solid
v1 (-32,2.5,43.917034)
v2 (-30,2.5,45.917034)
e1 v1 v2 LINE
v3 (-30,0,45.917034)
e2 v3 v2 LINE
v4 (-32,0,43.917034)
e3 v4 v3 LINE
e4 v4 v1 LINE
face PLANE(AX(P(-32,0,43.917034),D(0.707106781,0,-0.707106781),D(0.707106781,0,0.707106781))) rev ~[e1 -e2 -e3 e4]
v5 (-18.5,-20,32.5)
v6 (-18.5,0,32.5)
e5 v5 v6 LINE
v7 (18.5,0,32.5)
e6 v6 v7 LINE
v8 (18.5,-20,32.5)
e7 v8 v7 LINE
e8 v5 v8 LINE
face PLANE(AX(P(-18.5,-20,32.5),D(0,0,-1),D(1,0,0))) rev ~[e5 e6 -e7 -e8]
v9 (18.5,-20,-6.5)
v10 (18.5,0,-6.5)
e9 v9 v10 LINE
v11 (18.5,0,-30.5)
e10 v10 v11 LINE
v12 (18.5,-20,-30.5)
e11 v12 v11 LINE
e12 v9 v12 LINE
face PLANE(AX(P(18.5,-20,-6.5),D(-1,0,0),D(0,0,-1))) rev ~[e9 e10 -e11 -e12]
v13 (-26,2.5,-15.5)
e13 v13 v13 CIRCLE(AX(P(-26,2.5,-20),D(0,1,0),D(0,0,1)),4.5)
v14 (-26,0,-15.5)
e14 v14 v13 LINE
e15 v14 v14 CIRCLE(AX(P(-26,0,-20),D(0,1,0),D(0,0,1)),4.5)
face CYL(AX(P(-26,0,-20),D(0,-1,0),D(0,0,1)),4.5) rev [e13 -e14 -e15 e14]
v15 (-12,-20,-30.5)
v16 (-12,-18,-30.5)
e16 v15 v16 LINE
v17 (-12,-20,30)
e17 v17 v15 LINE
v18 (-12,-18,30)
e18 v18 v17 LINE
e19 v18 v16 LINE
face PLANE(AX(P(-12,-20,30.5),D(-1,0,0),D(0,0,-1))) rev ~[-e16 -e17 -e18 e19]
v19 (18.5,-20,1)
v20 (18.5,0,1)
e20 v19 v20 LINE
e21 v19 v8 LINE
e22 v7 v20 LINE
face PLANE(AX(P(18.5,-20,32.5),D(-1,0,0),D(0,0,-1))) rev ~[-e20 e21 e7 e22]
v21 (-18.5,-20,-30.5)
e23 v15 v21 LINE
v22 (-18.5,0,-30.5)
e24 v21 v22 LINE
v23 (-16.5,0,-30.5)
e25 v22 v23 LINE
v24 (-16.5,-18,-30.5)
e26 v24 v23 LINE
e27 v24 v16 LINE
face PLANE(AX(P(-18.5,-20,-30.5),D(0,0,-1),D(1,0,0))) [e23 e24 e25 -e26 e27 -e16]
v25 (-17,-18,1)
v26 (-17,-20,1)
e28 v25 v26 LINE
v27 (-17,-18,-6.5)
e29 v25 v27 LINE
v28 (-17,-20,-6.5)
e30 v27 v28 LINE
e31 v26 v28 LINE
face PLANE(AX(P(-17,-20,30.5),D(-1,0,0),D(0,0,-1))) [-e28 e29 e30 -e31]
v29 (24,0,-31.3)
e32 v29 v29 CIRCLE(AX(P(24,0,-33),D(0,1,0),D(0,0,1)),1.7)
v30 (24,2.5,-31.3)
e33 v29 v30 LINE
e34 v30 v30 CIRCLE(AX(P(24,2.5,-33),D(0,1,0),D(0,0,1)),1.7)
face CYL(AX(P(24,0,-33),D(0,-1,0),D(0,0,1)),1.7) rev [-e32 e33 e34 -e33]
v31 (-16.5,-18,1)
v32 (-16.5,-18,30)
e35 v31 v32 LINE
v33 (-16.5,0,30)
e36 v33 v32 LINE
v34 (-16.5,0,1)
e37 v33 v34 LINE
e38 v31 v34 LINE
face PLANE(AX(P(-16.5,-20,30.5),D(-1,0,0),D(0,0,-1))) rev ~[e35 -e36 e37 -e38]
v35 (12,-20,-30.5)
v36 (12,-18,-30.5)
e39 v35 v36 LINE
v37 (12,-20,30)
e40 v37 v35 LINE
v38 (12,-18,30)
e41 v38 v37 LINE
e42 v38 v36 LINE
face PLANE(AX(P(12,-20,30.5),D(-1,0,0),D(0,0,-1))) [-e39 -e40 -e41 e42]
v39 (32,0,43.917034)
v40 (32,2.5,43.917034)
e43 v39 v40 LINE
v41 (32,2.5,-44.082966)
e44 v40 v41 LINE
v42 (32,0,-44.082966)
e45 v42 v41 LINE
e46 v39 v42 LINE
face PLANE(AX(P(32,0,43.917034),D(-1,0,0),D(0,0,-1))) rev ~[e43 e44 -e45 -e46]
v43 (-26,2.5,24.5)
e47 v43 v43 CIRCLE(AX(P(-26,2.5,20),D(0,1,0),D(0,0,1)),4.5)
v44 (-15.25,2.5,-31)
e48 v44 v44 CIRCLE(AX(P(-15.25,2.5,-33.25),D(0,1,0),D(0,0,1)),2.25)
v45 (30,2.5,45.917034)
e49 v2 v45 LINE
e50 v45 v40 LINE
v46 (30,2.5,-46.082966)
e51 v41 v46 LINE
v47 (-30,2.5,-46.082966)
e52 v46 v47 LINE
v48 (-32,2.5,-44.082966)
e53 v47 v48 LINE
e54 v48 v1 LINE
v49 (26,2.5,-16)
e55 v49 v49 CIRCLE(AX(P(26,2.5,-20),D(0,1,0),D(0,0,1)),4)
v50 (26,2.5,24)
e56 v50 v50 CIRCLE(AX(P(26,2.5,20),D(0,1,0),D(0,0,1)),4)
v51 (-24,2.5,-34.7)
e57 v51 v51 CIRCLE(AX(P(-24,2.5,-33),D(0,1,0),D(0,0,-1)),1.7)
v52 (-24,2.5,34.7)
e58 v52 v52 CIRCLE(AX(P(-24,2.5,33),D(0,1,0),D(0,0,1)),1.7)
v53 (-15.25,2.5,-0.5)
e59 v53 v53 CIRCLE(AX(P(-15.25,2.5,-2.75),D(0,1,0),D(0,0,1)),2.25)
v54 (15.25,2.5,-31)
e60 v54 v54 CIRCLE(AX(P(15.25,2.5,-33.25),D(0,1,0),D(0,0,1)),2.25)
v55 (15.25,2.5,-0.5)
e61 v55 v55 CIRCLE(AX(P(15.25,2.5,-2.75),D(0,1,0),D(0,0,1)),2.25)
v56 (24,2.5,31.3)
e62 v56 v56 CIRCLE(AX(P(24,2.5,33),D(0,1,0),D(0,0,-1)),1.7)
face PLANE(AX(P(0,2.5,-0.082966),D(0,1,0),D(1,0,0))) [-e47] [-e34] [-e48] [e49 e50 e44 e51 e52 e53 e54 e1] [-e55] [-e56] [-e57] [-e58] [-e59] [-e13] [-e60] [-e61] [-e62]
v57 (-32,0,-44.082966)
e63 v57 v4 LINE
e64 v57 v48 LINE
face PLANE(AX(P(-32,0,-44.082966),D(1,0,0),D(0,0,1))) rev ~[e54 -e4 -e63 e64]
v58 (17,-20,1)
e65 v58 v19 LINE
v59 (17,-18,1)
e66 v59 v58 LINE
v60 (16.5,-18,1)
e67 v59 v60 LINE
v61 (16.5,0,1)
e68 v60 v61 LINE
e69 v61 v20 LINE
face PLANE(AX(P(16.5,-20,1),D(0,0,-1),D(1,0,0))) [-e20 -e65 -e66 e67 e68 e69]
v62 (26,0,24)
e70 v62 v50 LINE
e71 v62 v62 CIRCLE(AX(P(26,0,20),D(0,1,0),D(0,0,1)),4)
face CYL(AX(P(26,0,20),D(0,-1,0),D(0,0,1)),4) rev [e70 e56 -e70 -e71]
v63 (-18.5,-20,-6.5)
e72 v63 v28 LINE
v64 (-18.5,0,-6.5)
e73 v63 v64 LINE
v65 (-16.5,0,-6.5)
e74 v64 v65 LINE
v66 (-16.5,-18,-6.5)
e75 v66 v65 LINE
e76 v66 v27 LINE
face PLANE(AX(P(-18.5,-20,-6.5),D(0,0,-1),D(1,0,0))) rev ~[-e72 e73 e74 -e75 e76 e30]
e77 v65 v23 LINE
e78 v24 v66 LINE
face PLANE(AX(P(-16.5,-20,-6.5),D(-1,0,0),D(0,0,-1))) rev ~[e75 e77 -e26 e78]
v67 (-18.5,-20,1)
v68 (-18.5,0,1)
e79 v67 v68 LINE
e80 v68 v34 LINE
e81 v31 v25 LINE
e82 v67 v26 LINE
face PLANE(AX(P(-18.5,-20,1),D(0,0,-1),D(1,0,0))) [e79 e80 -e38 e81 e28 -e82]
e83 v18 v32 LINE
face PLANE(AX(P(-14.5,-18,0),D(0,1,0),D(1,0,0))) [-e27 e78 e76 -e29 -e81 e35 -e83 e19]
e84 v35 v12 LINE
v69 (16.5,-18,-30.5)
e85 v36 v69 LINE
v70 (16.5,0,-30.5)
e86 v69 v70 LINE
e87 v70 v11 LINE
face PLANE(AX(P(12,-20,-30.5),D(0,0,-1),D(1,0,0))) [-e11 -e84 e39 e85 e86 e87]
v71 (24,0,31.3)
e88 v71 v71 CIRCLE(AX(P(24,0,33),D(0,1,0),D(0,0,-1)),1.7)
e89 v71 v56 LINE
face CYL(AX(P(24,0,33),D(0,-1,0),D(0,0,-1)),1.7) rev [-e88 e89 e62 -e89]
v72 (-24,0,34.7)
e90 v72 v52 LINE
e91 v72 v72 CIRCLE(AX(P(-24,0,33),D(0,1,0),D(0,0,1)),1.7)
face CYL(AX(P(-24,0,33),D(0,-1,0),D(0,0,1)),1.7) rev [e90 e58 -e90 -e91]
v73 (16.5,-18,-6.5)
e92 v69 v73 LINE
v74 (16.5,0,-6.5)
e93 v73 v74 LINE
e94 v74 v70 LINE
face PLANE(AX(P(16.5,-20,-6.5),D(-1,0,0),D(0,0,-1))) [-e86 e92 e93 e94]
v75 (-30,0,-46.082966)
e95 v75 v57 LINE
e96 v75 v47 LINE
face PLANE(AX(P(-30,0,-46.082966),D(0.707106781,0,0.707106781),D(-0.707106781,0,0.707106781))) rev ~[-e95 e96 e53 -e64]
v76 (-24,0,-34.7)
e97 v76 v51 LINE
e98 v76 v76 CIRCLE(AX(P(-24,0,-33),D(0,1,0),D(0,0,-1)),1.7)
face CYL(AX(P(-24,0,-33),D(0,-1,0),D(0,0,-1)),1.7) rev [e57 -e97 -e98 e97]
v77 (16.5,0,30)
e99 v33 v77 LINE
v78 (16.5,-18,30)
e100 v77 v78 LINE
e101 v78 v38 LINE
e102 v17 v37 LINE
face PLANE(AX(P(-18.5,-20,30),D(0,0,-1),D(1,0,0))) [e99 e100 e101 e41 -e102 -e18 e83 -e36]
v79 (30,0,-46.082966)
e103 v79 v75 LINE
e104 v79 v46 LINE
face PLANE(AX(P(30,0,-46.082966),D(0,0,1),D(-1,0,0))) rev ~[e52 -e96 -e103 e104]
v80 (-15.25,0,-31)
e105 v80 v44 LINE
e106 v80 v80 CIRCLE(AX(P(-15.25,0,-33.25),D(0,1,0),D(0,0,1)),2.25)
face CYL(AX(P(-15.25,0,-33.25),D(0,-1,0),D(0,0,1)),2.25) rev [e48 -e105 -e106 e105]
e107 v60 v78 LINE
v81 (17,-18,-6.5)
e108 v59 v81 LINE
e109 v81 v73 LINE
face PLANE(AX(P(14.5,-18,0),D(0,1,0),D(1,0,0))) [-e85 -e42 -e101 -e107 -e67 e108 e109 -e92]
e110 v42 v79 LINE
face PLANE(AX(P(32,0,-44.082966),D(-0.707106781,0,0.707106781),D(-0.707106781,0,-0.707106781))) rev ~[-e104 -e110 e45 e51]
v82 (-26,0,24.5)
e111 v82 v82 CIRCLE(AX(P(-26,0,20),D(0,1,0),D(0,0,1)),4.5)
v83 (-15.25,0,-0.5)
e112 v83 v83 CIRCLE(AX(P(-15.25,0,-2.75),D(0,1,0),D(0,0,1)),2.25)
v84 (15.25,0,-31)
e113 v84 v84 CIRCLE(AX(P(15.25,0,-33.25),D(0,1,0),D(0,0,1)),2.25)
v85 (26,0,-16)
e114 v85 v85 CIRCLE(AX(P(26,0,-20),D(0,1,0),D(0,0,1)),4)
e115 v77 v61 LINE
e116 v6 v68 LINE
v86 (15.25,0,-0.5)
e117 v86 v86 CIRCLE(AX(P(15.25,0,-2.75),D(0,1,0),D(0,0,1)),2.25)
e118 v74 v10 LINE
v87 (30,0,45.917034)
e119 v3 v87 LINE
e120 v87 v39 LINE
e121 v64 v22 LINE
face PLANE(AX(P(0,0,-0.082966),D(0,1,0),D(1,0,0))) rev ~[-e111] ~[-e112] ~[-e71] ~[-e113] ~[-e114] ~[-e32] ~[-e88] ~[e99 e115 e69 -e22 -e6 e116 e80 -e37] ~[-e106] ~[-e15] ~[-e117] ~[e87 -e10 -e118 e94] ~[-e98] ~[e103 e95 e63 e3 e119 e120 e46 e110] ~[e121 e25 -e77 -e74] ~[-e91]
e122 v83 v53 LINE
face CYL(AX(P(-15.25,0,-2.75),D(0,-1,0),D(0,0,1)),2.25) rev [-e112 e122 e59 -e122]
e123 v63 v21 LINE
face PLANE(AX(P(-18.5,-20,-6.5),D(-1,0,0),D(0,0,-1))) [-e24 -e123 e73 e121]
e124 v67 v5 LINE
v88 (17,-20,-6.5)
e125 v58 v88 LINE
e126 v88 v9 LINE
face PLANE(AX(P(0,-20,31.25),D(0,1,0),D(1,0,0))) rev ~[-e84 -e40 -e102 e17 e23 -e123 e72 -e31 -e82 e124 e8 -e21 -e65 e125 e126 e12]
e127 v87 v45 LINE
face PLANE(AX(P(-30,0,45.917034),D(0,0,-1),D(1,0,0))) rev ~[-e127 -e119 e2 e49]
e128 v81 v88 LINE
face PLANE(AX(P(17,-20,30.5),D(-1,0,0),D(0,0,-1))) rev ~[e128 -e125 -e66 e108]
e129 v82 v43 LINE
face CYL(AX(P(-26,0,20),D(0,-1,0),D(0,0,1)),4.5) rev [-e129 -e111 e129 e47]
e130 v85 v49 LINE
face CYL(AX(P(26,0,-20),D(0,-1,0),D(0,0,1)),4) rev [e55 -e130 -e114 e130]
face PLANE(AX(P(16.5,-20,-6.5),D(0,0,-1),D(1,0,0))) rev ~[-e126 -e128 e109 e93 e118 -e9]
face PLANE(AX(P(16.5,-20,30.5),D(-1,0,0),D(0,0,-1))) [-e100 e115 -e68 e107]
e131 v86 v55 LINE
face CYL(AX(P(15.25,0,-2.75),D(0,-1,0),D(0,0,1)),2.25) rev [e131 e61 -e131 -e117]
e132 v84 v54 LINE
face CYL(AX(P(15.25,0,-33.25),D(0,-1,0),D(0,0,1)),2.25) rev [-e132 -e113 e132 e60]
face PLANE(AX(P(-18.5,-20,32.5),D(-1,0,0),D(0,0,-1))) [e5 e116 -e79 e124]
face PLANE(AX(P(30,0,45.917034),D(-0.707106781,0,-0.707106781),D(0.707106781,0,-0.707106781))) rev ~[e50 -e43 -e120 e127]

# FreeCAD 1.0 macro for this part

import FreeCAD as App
import Part
import Sketcher

V = App.Vector
Q = App.Units.Quantity

doc = App.newDocument("Part")
body = doc.addObject("PartDesign::Body", "Body")

sketch1 = doc.addObject("Sketcher::SketchObject", "Sketch")
body.addObject(sketch1)
sketch1.AttachmentSupport = (doc.XZ_Plane, [""])
sketch1.MapMode = "FlatFace"
sketch1.addGeometry([
    Part.LineSegment(V(-30, 45.9, 0), V(30, 45.9, 0)),
    Part.LineSegment(V(30, 45.9, 0), V(32, 43.9, 0)),
    Part.LineSegment(V(32, 43.9, 0), V(32, -44.1, 0)),
    Part.LineSegment(V(32, -44.1, 0), V(30, -46.1, 0)),
    Part.LineSegment(V(30, -46.1, 0), V(-30, -46.1, 0)),
    Part.LineSegment(V(-30, -46.1, 0), V(-32, -44.1, 0)),
    Part.LineSegment(V(-32, -44.1, 0), V(-32, 43.9, 0)),
    Part.LineSegment(V(-32, 43.9, 0), V(-30, 45.9, 0)),
    Part.Circle(V(-24, 33, 0), V(0, 0, 1), 1.7),
    Part.Circle(V(-26, 20, 0), V(0, 0, 1), 4.5),
    Part.Circle(V(24, 33, 0), V(0, 0, 1), 1.7),
    Part.Circle(V(26, 20, 0), V(0, 0, 1), 4),
    Part.Circle(V(-15.2, -2.8, 0), V(0, 0, 1), 2.2),
    Part.Circle(V(-26, -20, 0), V(0, 0, 1), 4.5),
    Part.Circle(V(-24, -33, 0), V(0, 0, 1), 1.7),
    Part.Circle(V(-15.2, -33.2, 0), V(0, 0, 1), 2.2),
    Part.Circle(V(15.2, -2.8, 0), V(0, 0, 1), 2.2),
    Part.Circle(V(26, -20, 0), V(0, 0, 1), 4),
    Part.Circle(V(15.2, -33.2, 0), V(0, 0, 1), 2.2),
    Part.Circle(V(24, -33, 0), V(0, 0, 1), 1.7),
], False)
sketch1.addConstraint([
    Sketcher.Constraint("Coincident", 0, 2, 1, 1),
    Sketcher.Constraint("Coincident", 1, 2, 2, 1),
    Sketcher.Constraint("Coincident", 2, 2, 3, 1),
    Sketcher.Constraint("Coincident", 3, 2, 4, 1),
    Sketcher.Constraint("Coincident", 4, 2, 5, 1),
    Sketcher.Constraint("Coincident", 5, 2, 6, 1),
    Sketcher.Constraint("Coincident", 6, 2, 7, 1),
    Sketcher.Constraint("Coincident", 7, 2, 0, 1),
    Sketcher.Constraint("Horizontal", 0),
    Sketcher.Constraint("Vertical", 2),
    Sketcher.Constraint("Horizontal", 4),
    Sketcher.Constraint("Vertical", 6),
    Sketcher.Constraint("Equal", 8, 10),
    Sketcher.Constraint("Equal", 9, 13),
    Sketcher.Constraint("Equal", 10, 14),
    Sketcher.Constraint("Equal", 12, 15),
    Sketcher.Constraint("Equal", 15, 16),
    Sketcher.Constraint("Equal", 11, 17),
    Sketcher.Constraint("Equal", 16, 18),
    Sketcher.Constraint("Equal", 14, 19),
    Sketcher.Constraint("Symmetric", 11, 3, 13, 3, -1, 1),
    Sketcher.Constraint("Symmetric", 10, 3, 14, 3, -1, 1),
    Sketcher.Constraint("Symmetric", 9, 3, 17, 3, -1, 1),
    Sketcher.Constraint("Symmetric", 8, 3, 19, 3, -1, 1),
    Sketcher.Constraint("Symmetric", 8, 3, 10, 3, -2),
    Sketcher.Constraint("Symmetric", 9, 3, 11, 3, -2),
    Sketcher.Constraint("Symmetric", 12, 3, 16, 3, -2),
    Sketcher.Constraint("Symmetric", 15, 3, 18, 3, -2),
    Sketcher.Constraint("Symmetric", 2, 2, 5, 2, -2),
    Sketcher.Constraint("Perpendicular", 1, 3),
    Sketcher.Constraint("Perpendicular", 3, 5),
    Sketcher.Constraint("Perpendicular", 5, 7),
    Sketcher.Constraint("Horizontal", 1, 2, 6, 2),
    Sketcher.Constraint("Vertical", 12, 3, 15, 3),
    Sketcher.Constraint("Vertical", 0, 2, 3, 2),
    Sketcher.Constraint("Vertical", 4, 2, 7, 2),
    Sketcher.Constraint("Diameter", 9, Q("9 mm")),
    Sketcher.Constraint("Diameter", 11, Q("8 mm")),
    Sketcher.Constraint("Diameter", 8, Q("3.4 mm")),
    Sketcher.Constraint("Diameter", 12, Q("4.5 mm")),
    Sketcher.Constraint("DistanceX", 0, 1, 0, 2, Q("60 mm")),
    Sketcher.Constraint("DistanceY", 2, 2, 2, 1, Q("88 mm")),
    Sketcher.Constraint("DistanceX", 8, 3, -1, 1, Q("24 mm")),
    Sketcher.Constraint("DistanceY", -1, 1, 8, 3, Q("33 mm")),
    Sketcher.Constraint("DistanceX", 9, 3, -1, 1, Q("26 mm")),
    Sketcher.Constraint("DistanceY", -1, 1, 9, 3, Q("20 mm")),
    Sketcher.Constraint("DistanceX", -1, 1, 1, 2, Q("32 mm")),
    Sketcher.Constraint("DistanceY", 15, 3, 12, 3, Q("30.5 mm")),
    Sketcher.Constraint("DistanceX", 12, 3, 16, 3, Q("30.5 mm")),
    Sketcher.Constraint("DistanceY", 12, 3, -1, 1, Q("2.75 mm")),
    Sketcher.Constraint("DistanceY", -1, 1, 0, 2, Q("45.917034 mm")),
])
pad1 = doc.addObject("PartDesign::Pad", "Pad")
body.addObject(pad1)
pad1.Profile = sketch1
pad1.Length = 2.5
pad1.Reversed = True
body2 = doc.addObject("PartDesign::Body", "Body001")

sketch2 = doc.addObject("Sketcher::SketchObject", "Sketch001")
body2.addObject(sketch2)
sketch2.AttachmentSupport = (doc.getObject("XZ_Plane001"), [""])
sketch2.MapMode = "FlatFace"
sketch2.AttachmentOffset = App.Placement(V(0, 0, 20), App.Rotation())
sketch2.addGeometry([
    Part.LineSegment(V(12, -30, 0), V(12, 30, 0)),
    Part.LineSegment(V(12, 30, 0), V(17, 30, 0)),
    Part.LineSegment(V(17, 30, 0), V(17, -30, 0)),
    Part.LineSegment(V(17, -30, 0), V(12, -30, 0)),
], False)
sketch2.addConstraint([
    Sketcher.Constraint("Coincident", 0, 2, 1, 1),
    Sketcher.Constraint("Coincident", 1, 2, 2, 1),
    Sketcher.Constraint("Coincident", 2, 2, 3, 1),
    Sketcher.Constraint("Coincident", 3, 2, 0, 1),
    Sketcher.Constraint("Vertical", 0),
    Sketcher.Constraint("Horizontal", 1),
    Sketcher.Constraint("Vertical", 2),
    Sketcher.Constraint("Horizontal", 3),
    Sketcher.Constraint("DistanceX", 1, 1, 1, 2, Q("5 mm")),
    Sketcher.Constraint("DistanceY", 0, 1, 0, 2, Q("61 mm")),
    Sketcher.Constraint("DistanceX", -1, 1, 0, 2, Q("12 mm")),
    Sketcher.Constraint("DistanceY", -1, 1, 0, 2, Q("30.5 mm")),
])
pad2 = doc.addObject("PartDesign::Pad", "Pad001")
body2.addObject(pad2)
pad2.Profile = sketch2
pad2.Length = 2
pad2.Reversed = True
body3 = doc.addObject("PartDesign::Body", "Body002")

sketch3 = doc.addObject("Sketcher::SketchObject", "Sketch002")
body3.addObject(sketch3)
sketch3.AttachmentSupport = (doc.getObject("XZ_Plane002"), [""])
sketch3.MapMode = "FlatFace"
sketch3.AttachmentOffset = App.Placement(V(0, 0, 20), App.Rotation())
sketch3.addGeometry([
    Part.LineSegment(V(-17, -30, 0), V(-17, 30, 0)),
    Part.LineSegment(V(-17, 30, 0), V(-12, 30, 0)),
    Part.LineSegment(V(-12, 30, 0), V(-12, -30, 0)),
    Part.LineSegment(V(-12, -30, 0), V(-17, -30, 0)),
], False)
sketch3.addConstraint([
    Sketcher.Constraint("Coincident", 0, 2, 1, 1),
    Sketcher.Constraint("Coincident", 1, 2, 2, 1),
    Sketcher.Constraint("Coincident", 2, 2, 3, 1),
    Sketcher.Constraint("Coincident", 3, 2, 0, 1),
    Sketcher.Constraint("Vertical", 0),
    Sketcher.Constraint("Horizontal", 1),
    Sketcher.Constraint("Vertical", 2),
    Sketcher.Constraint("Horizontal", 3),
    Sketcher.Constraint("DistanceX", 1, 1, 1, 2, Q("5 mm")),
    Sketcher.Constraint("DistanceY", 0, 1, 0, 2, Q("61 mm")),
    Sketcher.Constraint("DistanceX", 0, 2, -1, 1, Q("17 mm")),
    Sketcher.Constraint("DistanceY", -1, 1, 0, 2, Q("30.5 mm")),
])
pad3 = doc.addObject("PartDesign::Pad", "Pad002")
body3.addObject(pad3)
pad3.Profile = sketch3
pad3.Length = 2
pad3.Reversed = True
body.AllowCompound = True
doc.recompute()

boolean = doc.addObject("PartDesign::Boolean", "Boolean")
body.addObject(boolean)
boolean.Type = "Fuse"
boolean.addObjects([body2])
doc.recompute()

boolean2 = doc.addObject("PartDesign::Boolean", "Boolean001")
body.addObject(boolean2)
boolean2.Type = "Fuse"
boolean2.addObjects([body3])

sketch4 = doc.addObject("Sketcher::SketchObject", "Sketch003")
body.addObject(sketch4)
sketch4.AttachmentSupport = (doc.XZ_Plane, [""])
sketch4.MapMode = "FlatFace"
sketch4.AttachmentOffset = App.Placement(V(0, 0, 20), App.Rotation())
sketch4.addGeometry([
    Part.LineSegment(V(16.5, 1, 0), V(16.5, 30.5, 0)),
    Part.LineSegment(V(16.5, 30.5, 0), V(18.5, 30.5, 0)),
    Part.LineSegment(V(18.5, 30.5, 0), V(18.5, 1, 0)),
    Part.LineSegment(V(18.5, 1, 0), V(16.5, 1, 0)),
    Part.LineSegment(V(-18.5, 1, 0), V(-18.5, 30.5, 0)),
    Part.LineSegment(V(-18.5, 30.5, 0), V(-16.5, 30.5, 0)),
    Part.LineSegment(V(-16.5, 30.5, 0), V(-16.5, 1, 0)),
    Part.LineSegment(V(-16.5, 1, 0), V(-18.5, 1, 0)),
    Part.LineSegment(V(16.5, -30.5, 0), V(16.5, -6.5, 0)),
    Part.LineSegment(V(16.5, -6.5, 0), V(18.5, -6.5, 0)),
    Part.LineSegment(V(18.5, -6.5, 0), V(18.5, -30.5, 0)),
    Part.LineSegment(V(18.5, -30.5, 0), V(16.5, -30.5, 0)),
    Part.LineSegment(V(-18.5, -30.5, 0), V(-18.5, -6.5, 0)),
    Part.LineSegment(V(-18.5, -6.5, 0), V(-16.5, -6.5, 0)),
    Part.LineSegment(V(-16.5, -6.5, 0), V(-16.5, -30.5, 0)),
    Part.LineSegment(V(-16.5, -30.5, 0), V(-18.5, -30.5, 0)),
], False)
sketch4.addConstraint([
    Sketcher.Constraint("Coincident", 0, 2, 1, 1),
    Sketcher.Constraint("Coincident", 1, 2, 2, 1),
    Sketcher.Constraint("Coincident", 2, 2, 3, 1),
    Sketcher.Constraint("Coincident", 3, 2, 0, 1),
    Sketcher.Constraint("Coincident", 4, 2, 5, 1),
    Sketcher.Constraint("Coincident", 5, 2, 6, 1),
    Sketcher.Constraint("Coincident", 6, 2, 7, 1),
    Sketcher.Constraint("Coincident", 7, 2, 4, 1),
    Sketcher.Constraint("Coincident", 8, 2, 9, 1),
    Sketcher.Constraint("Coincident", 9, 2, 10, 1),
    Sketcher.Constraint("Coincident", 10, 2, 11, 1),
    Sketcher.Constraint("Coincident", 11, 2, 8, 1),
    Sketcher.Constraint("Coincident", 12, 2, 13, 1),
    Sketcher.Constraint("Coincident", 13, 2, 14, 1),
    Sketcher.Constraint("Coincident", 14, 2, 15, 1),
    Sketcher.Constraint("Coincident", 15, 2, 12, 1),
    Sketcher.Constraint("Vertical", 0),
    Sketcher.Constraint("Horizontal", 1),
    Sketcher.Constraint("Vertical", 2),
    Sketcher.Constraint("Horizontal", 3),
    Sketcher.Constraint("Vertical", 4),
    Sketcher.Constraint("Horizontal", 5),
    Sketcher.Constraint("Vertical", 6),
    Sketcher.Constraint("Horizontal", 7),
    Sketcher.Constraint("Vertical", 8),
    Sketcher.Constraint("Horizontal", 9),
    Sketcher.Constraint("Vertical", 10),
    Sketcher.Constraint("Horizontal", 11),
    Sketcher.Constraint("Vertical", 12),
    Sketcher.Constraint("Horizontal", 13),
    Sketcher.Constraint("Vertical", 14),
    Sketcher.Constraint("Horizontal", 15),
    Sketcher.Constraint("Symmetric", 4, 2, 10, 2, -1, 1),
    Sketcher.Constraint("Symmetric", 0, 2, 14, 2, -1, 1),
    Sketcher.Constraint("Symmetric", 1, 2, 4, 2, -2),
    Sketcher.Constraint("Symmetric", 3, 2, 6, 2, -2),
    Sketcher.Constraint("Symmetric", 9, 2, 12, 2, -2),
    Sketcher.Constraint("Vertical", 3, 2, 8, 2),
    Sketcher.Constraint("DistanceX", 1, 1, 1, 2, Q("2 mm")),
    Sketcher.Constraint("DistanceY", 8, 1, 8, 2, Q("24 mm")),
    Sketcher.Constraint("DistanceY", 0, 1, 0, 2, Q("29.5 mm")),
    Sketcher.Constraint("DistanceY", -1, 1, 2, 2, Q("1 mm")),
    Sketcher.Constraint("DistanceX", 4, 2, 0, 2, Q("35 mm")),
])
pad4 = doc.addObject("PartDesign::Pad", "Pad003")
body.addObject(pad4)
pad4.Profile = sketch4
pad4.Length = 20
pad4.Reversed = True

sketch5 = doc.addObject("Sketcher::SketchObject", "Sketch004")
body.addObject(sketch5)
sketch5.AttachmentSupport = (doc.XZ_Plane, [""])
sketch5.MapMode = "FlatFace"
sketch5.AttachmentOffset = App.Placement(V(0, 0, 20), App.Rotation())
sketch5.addGeometry([
    Part.LineSegment(V(-18.5, 30, 0), V(-18.5, 32.5, 0)),
    Part.LineSegment(V(-18.5, 32.5, 0), V(18.5, 32.5, 0)),
    Part.LineSegment(V(18.5, 32.5, 0), V(18.5, 30, 0)),
    Part.LineSegment(V(18.5, 30, 0), V(-18.5, 30, 0)),
], False)
sketch5.addConstraint([
    Sketcher.Constraint("Coincident", 0, 2, 1, 1),
    Sketcher.Constraint("Coincident", 1, 2, 2, 1),
    Sketcher.Constraint("Coincident", 2, 2, 3, 1),
    Sketcher.Constraint("Coincident", 3, 2, 0, 1),
    Sketcher.Constraint("Vertical", 0),
    Sketcher.Constraint("Horizontal", 1),
    Sketcher.Constraint("Vertical", 2),
    Sketcher.Constraint("Horizontal", 3),
    Sketcher.Constraint("DistanceX", 1, 1, 1, 2, Q("37 mm")),
    Sketcher.Constraint("DistanceY", 0, 1, 0, 2, Q("2.5 mm")),
    Sketcher.Constraint("DistanceY", -1, 1, 2, 2, Q("30 mm")),
    Sketcher.Constraint("DistanceX", 0, 2, -1, 1, Q("18.5 mm")),
])
pad5 = doc.addObject("PartDesign::Pad", "Pad004")
body.addObject(pad5)
pad5.Profile = sketch5
pad5.Length = 20
pad5.Reversed = True

doc.recompute()
